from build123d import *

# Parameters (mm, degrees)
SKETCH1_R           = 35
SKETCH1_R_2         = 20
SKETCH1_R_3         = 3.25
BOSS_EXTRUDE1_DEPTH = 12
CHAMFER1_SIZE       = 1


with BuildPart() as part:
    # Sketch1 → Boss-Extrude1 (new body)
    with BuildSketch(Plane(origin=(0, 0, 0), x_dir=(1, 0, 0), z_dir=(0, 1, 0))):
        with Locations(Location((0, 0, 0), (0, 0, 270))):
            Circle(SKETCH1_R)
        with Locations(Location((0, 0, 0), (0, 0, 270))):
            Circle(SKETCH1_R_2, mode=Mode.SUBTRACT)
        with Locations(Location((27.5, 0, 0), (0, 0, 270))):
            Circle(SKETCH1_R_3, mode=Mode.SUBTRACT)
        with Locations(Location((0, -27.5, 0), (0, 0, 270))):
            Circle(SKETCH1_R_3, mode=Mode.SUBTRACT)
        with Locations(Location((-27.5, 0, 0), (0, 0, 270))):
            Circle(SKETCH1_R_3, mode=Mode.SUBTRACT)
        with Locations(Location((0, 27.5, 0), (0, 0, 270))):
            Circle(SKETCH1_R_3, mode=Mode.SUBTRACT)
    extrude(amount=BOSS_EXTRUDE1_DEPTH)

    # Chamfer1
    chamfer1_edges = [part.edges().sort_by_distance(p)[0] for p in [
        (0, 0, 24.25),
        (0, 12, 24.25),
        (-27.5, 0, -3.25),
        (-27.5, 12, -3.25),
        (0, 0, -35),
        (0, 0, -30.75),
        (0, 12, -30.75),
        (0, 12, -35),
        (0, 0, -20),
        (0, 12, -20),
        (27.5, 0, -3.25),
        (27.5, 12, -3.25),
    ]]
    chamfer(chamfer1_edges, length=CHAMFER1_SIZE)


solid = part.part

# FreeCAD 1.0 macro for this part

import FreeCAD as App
import Part
import Sketcher


def edges_at(feature, points):
    """Names of the edges that pass closest to the given points."""
    edges = feature.Shape.Edges
    near = lambda p: min(range(len(edges)), key=lambda i: edges[i].distToShape(Part.Vertex(*p))[0])
    return sorted({f"Edge{near(p) + 1}" for p in points})

doc = App.newDocument("Part")
body = doc.addObject("PartDesign::Body", "Body")

# Sketch on XZ plane
sketch1 = body.newObject("Sketcher::SketchObject", "Sketch")
sketch1.AttachmentSupport = (doc.getObject("XZ_Plane"), [""])
sketch1.MapMode = "FlatFace"
sketch1.addGeometry([
    Part.Circle(App.Vector(0, 0, 0), App.Vector(0, 0, 1), 35),  # 0
    Part.Circle(App.Vector(-27.5, 0, 0), App.Vector(0, 0, 1), 3.2),  # 1
    Part.Circle(App.Vector(0, -27.5, 0), App.Vector(0, 0, 1), 3.2),  # 2
    Part.Circle(App.Vector(0, 0, 0), App.Vector(0, 0, 1), 20),  # 3
    Part.Circle(App.Vector(0, 27.5, 0), App.Vector(0, 0, 1), 3.2),  # 4
    Part.Circle(App.Vector(27.5, 0, 0), App.Vector(0, 0, 1), 3.2),  # 5
], False)
sketch1.addConstraint([
    Sketcher.Constraint("Coincident", 0, 3, -1, 1),
    Sketcher.Constraint("Coincident", 3, 3, -1, 1),
    Sketcher.Constraint("Equal", 1, 2),
    Sketcher.Constraint("Equal", 2, 4),
    Sketcher.Constraint("Equal", 4, 5),
    Sketcher.Constraint("Symmetric", 2, 3, 4, 3, -1, 1),
    Sketcher.Constraint("Symmetric", 1, 3, 5, 3, -1, 1),
    Sketcher.Constraint("PointOnObject", 1, 3, -1),
    Sketcher.Constraint("PointOnObject", 2, 3, -2),
    Sketcher.Constraint("Diameter", 0, 70.0),
    Sketcher.Constraint("Diameter", 3, 40.0),
    Sketcher.Constraint("Diameter", 1, 6.5),
    Sketcher.Constraint("DistanceY", 2, 3, 4, 3, 55.0),
    Sketcher.Constraint("DistanceX", 1, 3, 5, 3, 55.0),
])
pad1 = body.newObject("PartDesign::Pad", "Pad")
pad1.Profile = sketch1
pad1.Length = 12
pad1.Reversed = True
doc.recompute()

chamfer = body.newObject("PartDesign::Chamfer", "Chamfer")
chamfer.Base = (pad1, edges_at(pad1, [
    (0, 0, 24.25),
    (0, 12, 24.25),
    (-27.5, 0, -3.25),
    (-27.5, 12, -3.25),
    (0, 0, -35),
    (0, 0, -30.75),
    (0, 12, -30.75),
    (0, 12, -35),
    (0, 0, -20),
    (0, 12, -20),
    (27.5, 0, -3.25),
    (27.5, 12, -3.25),
]))
chamfer.Size = 1

doc.recompute()
